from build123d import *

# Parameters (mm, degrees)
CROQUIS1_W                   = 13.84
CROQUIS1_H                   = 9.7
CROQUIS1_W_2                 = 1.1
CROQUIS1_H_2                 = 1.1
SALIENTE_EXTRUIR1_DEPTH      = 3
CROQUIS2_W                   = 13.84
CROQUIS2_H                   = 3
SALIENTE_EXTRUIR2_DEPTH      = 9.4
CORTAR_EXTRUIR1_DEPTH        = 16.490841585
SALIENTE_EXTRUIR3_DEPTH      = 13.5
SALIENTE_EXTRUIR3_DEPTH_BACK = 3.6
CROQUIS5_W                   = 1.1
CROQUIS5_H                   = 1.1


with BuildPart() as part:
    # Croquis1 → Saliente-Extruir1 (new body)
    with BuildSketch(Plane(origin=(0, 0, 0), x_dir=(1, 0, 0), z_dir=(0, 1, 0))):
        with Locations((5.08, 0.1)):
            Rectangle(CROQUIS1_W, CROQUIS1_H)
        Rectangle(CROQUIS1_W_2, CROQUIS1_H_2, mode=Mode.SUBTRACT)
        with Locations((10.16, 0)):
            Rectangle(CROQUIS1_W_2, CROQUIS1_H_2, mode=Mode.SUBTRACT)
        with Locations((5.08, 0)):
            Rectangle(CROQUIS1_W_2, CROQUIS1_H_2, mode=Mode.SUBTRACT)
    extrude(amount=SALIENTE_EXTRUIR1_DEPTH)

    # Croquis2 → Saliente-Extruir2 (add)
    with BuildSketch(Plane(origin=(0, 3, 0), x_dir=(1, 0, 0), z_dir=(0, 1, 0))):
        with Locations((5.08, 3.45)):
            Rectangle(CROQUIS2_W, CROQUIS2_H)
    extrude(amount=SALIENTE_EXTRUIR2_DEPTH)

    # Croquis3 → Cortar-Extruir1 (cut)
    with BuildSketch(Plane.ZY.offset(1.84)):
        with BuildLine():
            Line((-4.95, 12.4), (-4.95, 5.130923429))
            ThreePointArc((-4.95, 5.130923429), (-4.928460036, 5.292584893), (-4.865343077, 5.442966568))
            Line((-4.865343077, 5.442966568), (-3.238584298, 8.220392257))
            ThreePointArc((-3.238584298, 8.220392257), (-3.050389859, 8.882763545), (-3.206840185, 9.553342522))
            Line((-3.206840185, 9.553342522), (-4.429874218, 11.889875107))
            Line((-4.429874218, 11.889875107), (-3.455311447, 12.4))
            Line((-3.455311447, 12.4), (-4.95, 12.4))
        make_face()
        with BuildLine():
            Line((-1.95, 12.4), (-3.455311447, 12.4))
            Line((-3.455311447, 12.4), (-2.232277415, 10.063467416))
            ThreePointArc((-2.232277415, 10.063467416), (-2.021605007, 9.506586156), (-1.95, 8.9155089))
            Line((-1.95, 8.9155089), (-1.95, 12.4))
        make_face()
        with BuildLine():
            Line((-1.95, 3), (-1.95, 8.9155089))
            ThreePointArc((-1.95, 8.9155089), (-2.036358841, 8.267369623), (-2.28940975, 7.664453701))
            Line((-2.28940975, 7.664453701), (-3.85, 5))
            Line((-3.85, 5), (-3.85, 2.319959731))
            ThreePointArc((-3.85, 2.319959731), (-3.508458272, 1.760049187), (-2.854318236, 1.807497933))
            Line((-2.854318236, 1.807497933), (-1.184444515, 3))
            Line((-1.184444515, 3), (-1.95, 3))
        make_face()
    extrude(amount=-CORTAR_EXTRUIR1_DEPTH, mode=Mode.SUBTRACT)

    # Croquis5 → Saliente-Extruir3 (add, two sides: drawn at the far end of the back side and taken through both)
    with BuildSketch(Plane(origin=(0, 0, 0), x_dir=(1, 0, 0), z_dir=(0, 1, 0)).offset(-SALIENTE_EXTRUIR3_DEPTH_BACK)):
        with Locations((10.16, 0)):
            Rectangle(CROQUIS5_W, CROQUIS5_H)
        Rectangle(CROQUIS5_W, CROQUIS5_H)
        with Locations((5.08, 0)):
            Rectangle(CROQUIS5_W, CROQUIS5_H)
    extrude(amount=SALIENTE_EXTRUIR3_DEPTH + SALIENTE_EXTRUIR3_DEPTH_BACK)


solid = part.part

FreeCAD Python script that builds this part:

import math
import FreeCAD as App
import Part
import Sketcher

V = App.Vector
Q = App.Units.Quantity

doc = App.newDocument("Part")
params = doc.addObject("Spreadsheet::Sheet", "Params")
for row, (alias, value) in enumerate([
    ("sketch1_width", "1.1 mm"),
    ("sketch1_height", "9.7 mm"),
    ("sketch1_width2", "13.84 mm"),
    ("pad1_length", "3 mm"),
    ("sketch2_height", "3 mm"),
    ("sketch2_width", "13.84 mm"),
    ("pad2_length", "9.4 mm"),
    ("sketch3_length", "1.1 mm"),
    ("pocket1_length", "16.490842 mm"),
    ("sketch4_width", "1.1 mm"),
    ("pad3_length", "13.5 mm"),
    ("pad3_length2", "3.6 mm"),
], start=1):
    params.set(f"A{row}", alias)
    params.set(f"B{row}", "=" + value)
    params.setAlias(f"B{row}", alias)

body = doc.addObject("PartDesign::Body", "Body")

# Sketch on XZ plane
sketch1 = doc.addObject("Sketcher::SketchObject", "Sketch")
body.addObject(sketch1)
sketch1.AttachmentSupport = (doc.XZ_Plane, [""])
sketch1.MapMode = "FlatFace"
sketch1.addGeometry([
    Part.LineSegment(V(-1.8, -5, 0), V(-1.8, 4.8, 0)),  # 0
    Part.LineSegment(V(-1.8, 4.8, 0), V(12, 4.8, 0)),  # 1
    Part.LineSegment(V(12, 4.8, 0), V(12, -5, 0)),  # 2
    Part.LineSegment(V(12, -5, 0), V(-1.8, -5, 0)),  # 3
    Part.LineSegment(V(0.6, 0.6, 0), V(-0.6, 0.6, 0)),  # 4
    Part.LineSegment(V(-0.6, 0.6, 0), V(-0.6, -0.6, 0)),  # 5
    Part.LineSegment(V(-0.6, -0.6, 0), V(0.6, -0.6, 0)),  # 6
    Part.LineSegment(V(0.6, -0.6, 0), V(0.6, 0.6, 0)),  # 7
    Part.LineSegment(V(5.6, 0.6, 0), V(4.5, 0.6, 0)),  # 8
    Part.LineSegment(V(4.5, 0.6, 0), V(4.5, -0.6, 0)),  # 9
    Part.LineSegment(V(4.5, -0.6, 0), V(5.6, -0.6, 0)),  # 10
    Part.LineSegment(V(5.6, -0.6, 0), V(5.6, 0.6, 0)),  # 11
    Part.LineSegment(V(10.7, 0.6, 0), V(9.6, 0.6, 0)),  # 12
    Part.LineSegment(V(9.6, 0.6, 0), V(9.6, -0.6, 0)),  # 13
    Part.LineSegment(V(9.6, -0.6, 0), V(10.7, -0.6, 0)),  # 14
    Part.LineSegment(V(10.7, -0.6, 0), V(10.7, 0.6, 0)),  # 15
], False)
sketch1.addConstraint([
    Sketcher.Constraint("Coincident", 0, 2, 1, 1),
    Sketcher.Constraint("Coincident", 1, 2, 2, 1),
    Sketcher.Constraint("Coincident", 2, 2, 3, 1),
    Sketcher.Constraint("Coincident", 3, 2, 0, 1),
    Sketcher.Constraint("Coincident", 4, 2, 5, 1),
    Sketcher.Constraint("Coincident", 5, 2, 6, 1),
    Sketcher.Constraint("Coincident", 6, 2, 7, 1),
    Sketcher.Constraint("Coincident", 7, 2, 4, 1),
    Sketcher.Constraint("Coincident", 8, 2, 9, 1),
    Sketcher.Constraint("Coincident", 9, 2, 10, 1),
    Sketcher.Constraint("Coincident", 10, 2, 11, 1),
    Sketcher.Constraint("Coincident", 11, 2, 8, 1),
    Sketcher.Constraint("Coincident", 12, 2, 13, 1),
    Sketcher.Constraint("Coincident", 13, 2, 14, 1),
    Sketcher.Constraint("Coincident", 14, 2, 15, 1),
    Sketcher.Constraint("Coincident", 15, 2, 12, 1),
    Sketcher.Constraint("Vertical", 0),
    Sketcher.Constraint("Horizontal", 1),
    Sketcher.Constraint("Vertical", 2),
    Sketcher.Constraint("Horizontal", 3),
    Sketcher.Constraint("Horizontal", 4),
    Sketcher.Constraint("Vertical", 5),
    Sketcher.Constraint("Horizontal", 6),
    Sketcher.Constraint("Vertical", 7),
    Sketcher.Constraint("Horizontal", 8),
    Sketcher.Constraint("Vertical", 9),
    Sketcher.Constraint("Horizontal", 10),
    Sketcher.Constraint("Vertical", 11),
    Sketcher.Constraint("Horizontal", 12),
    Sketcher.Constraint("Vertical", 13),
    Sketcher.Constraint("Horizontal", 14),
    Sketcher.Constraint("Vertical", 15),
    Sketcher.Constraint("Symmetric", 4, 2, 6, 2, -1, 1),
    Sketcher.Constraint("Horizontal", 7, 2, 8, 2),
    Sketcher.Constraint("Horizontal", 6, 2, 9, 2),
    Sketcher.Constraint("Horizontal", 11, 2, 12, 2),
    Sketcher.Constraint("Horizontal", 10, 2, 13, 2),
    Sketcher.Constraint("Equal", 6, 8),
    Sketcher.Constraint("Equal", 10, 12),
    Sketcher.Constraint("Equal", 14, 5),
    Sketcher.Constraint("DistanceX", 4, 2, 4, 1, Q("1.1 mm")),
    Sketcher.Constraint("DistanceY", 0, 1, 0, 2, Q("9.7 mm")),
    Sketcher.Constraint("DistanceX", -1, 1, 1, 2, Q("12 mm")),
    Sketcher.Constraint("DistanceX", 1, 1, 1, 2, Q("13.84 mm")),
    Sketcher.Constraint("DistanceY", 4, 2, 0, 2, Q("4.2 mm")),
    Sketcher.Constraint("DistanceX", -1, 1, 8, 2, Q("4.53 mm")),
    Sketcher.Constraint("DistanceX", -1, 1, 12, 2, Q("9.61 mm")),
])
sketch1.setExpression("Constraints[40]", "Params.sketch1_width")
sketch1.setExpression("Constraints[41]", "Params.sketch1_height")
sketch1.setExpression("Constraints[43]", "Params.sketch1_width2")
pad1 = doc.addObject("PartDesign::Pad", "Pad")
body.addObject(pad1)
pad1.Profile = sketch1
pad1.setExpression("Length", "Params.pad1_length")
pad1.Reversed = True

# Sketch on XZ plane
sketch2 = doc.addObject("Sketcher::SketchObject", "Sketch001")
body.addObject(sketch2)
sketch2.AttachmentSupport = (doc.XZ_Plane, [""])
sketch2.MapMode = "FlatFace"
sketch2.AttachmentOffset = App.Placement(V(0, 0, -3), App.Rotation())
sketch2.addGeometry([
    Part.LineSegment(V(-1.8, -5, 0), V(-1.8, -1.9, 0)),
    Part.LineSegment(V(-1.8, -1.9, 0), V(12, -1.9, 0)),
    Part.LineSegment(V(12, -1.9, 0), V(12, -5, 0)),
    Part.LineSegment(V(12, -5, 0), V(-1.8, -5, 0)),
], False)
sketch2.addConstraint([
    Sketcher.Constraint("Coincident", 0, 2, 1, 1),
    Sketcher.Constraint("Coincident", 1, 2, 2, 1),
    Sketcher.Constraint("Coincident", 2, 2, 3, 1),
    Sketcher.Constraint("Coincident", 3, 2, 0, 1),
    Sketcher.Constraint("Vertical", 0),
    Sketcher.Constraint("Horizontal", 1),
    Sketcher.Constraint("Vertical", 2),
    Sketcher.Constraint("Horizontal", 3),
    Sketcher.Constraint("DistanceY", 0, 1, 0, 2, Q("3 mm")),
    Sketcher.Constraint("DistanceX", -1, 1, 1, 2, Q("12 mm")),
    Sketcher.Constraint("DistanceX", 1, 1, 1, 2, Q("13.84 mm")),
    Sketcher.Constraint("DistanceY", 0, 2, -1, 1, Q("1.95 mm")),
])
sketch2.setExpression("Constraints[8]", "Params.sketch2_height")
sketch2.setExpression("Constraints[10]", "Params.sketch2_width")
pad2 = doc.addObject("PartDesign::Pad", "Pad001")
body.addObject(pad2)
pad2.Profile = sketch2
pad2.setExpression("Length", "Params.pad2_length")
pad2.Reversed = True

# Sketch on YZ plane
sketch3 = doc.addObject("Sketcher::SketchObject", "Sketch002")
body.addObject(sketch3)
sketch3.AttachmentSupport = (doc.YZ_Plane, [""])
sketch3.MapMode = "FlatFace"
sketch3.AttachmentOffset = App.Placement(V(0, 0, -1.84), App.Rotation())
sketch3.addGeometry([
    Part.LineSegment(V(12.4, -4.95, 0), V(5.13, -4.95, 0)),  # 0
    Part.ArcOfCircle(Part.Circle(V(5.13, -4.33, 0), V(0, 0, 1), 0.62), math.radians(-90), math.radians(-60)),  # 1
    Part.LineSegment(V(5.44, -4.87, 0), V(8.22, -3.24, 0)),  # 2
    Part.ArcOfCircle(Part.Circle(V(8.92, -4.43, 0), V(0, 0, 1), 1.38), math.radians(62), math.radians(120)),  # 3
    Part.LineSegment(V(9.55, -3.21, 0), V(11.89, -4.43, 0)),  # 4
    Part.LineSegment(V(11.89, -4.43, 0), V(12.4, -3.46, 0)),  # 5
    Part.LineSegment(V(12.4, -3.46, 0), V(12.4, -4.95, 0)),  # 6
    Part.LineSegment(V(12.4, -1.95, 0), V(12.4, -3.46, 0)),  # 7
    Part.LineSegment(V(12.4, -3.46, 0), V(10.06, -2.23, 0)),  # 8
    Part.ArcOfCircle(Part.Circle(V(8.92, -4.43, 0), V(0, 0, 1), 2.48), math.radians(62), math.radians(90)),  # 9
    Part.LineSegment(V(8.92, -1.95, 0), V(12.4, -1.95, 0)),  # 10
    Part.LineSegment(V(3, -1.95, 0), V(8.92, -1.95, 0)),  # 11
    Part.ArcOfCircle(Part.Circle(V(8.92, -4.43, 0), V(0, 0, 1), 2.48), math.radians(90), math.radians(120)),  # 12
    Part.LineSegment(V(7.66, -2.29, 0), V(5, -3.85, 0)),  # 13
    Part.LineSegment(V(5, -3.85, 0), V(2.32, -3.85, 0)),  # 14
    Part.ArcOfCircle(Part.Circle(V(2.32, -3.22, 0), V(0, 0, 1), 0.63), math.radians(144), math.radians(270)),  # 15
    Part.LineSegment(V(1.81, -2.85, 0), V(3, -1.18, 0)),  # 16
    Part.LineSegment(V(3, -1.18, 0), V(3, -1.95, 0)),  # 17
], False)
sketch3.addConstraint([
    Sketcher.Constraint("Tangent", 0, 2, 1, 1),
    Sketcher.Constraint("Tangent", 1, 2, 2, 1),
    Sketcher.Constraint("Tangent", 2, 2, 3, 2),
    Sketcher.Constraint("Tangent", 3, 1, 4, 1),
    Sketcher.Constraint("Coincident", 4, 2, 5, 1),
    Sketcher.Constraint("Coincident", 5, 2, 6, 1),
    Sketcher.Constraint("Coincident", 6, 2, 0, 1),
    Sketcher.Constraint("Coincident", 7, 2, 8, 1),
    Sketcher.Constraint("Tangent", 8, 2, 9, 1),
    Sketcher.Constraint("Tangent", 9, 2, 10, 1),
    Sketcher.Constraint("Coincident", 10, 2, 7, 1),
    Sketcher.Constraint("Tangent", 11, 2, 12, 1),
    Sketcher.Constraint("Tangent", 12, 2, 13, 1),
    Sketcher.Constraint("Coincident", 13, 2, 14, 1),
    Sketcher.Constraint("Tangent", 14, 2, 15, 2),
    Sketcher.Constraint("Tangent", 15, 1, 16, 1),
    Sketcher.Constraint("Coincident", 16, 2, 17, 1),
    Sketcher.Constraint("Coincident", 17, 2, 11, 1),
    Sketcher.Constraint("Horizontal", 0),
    Sketcher.Constraint("Vertical", 6),
    Sketcher.Constraint("Vertical", 7),
    Sketcher.Constraint("Horizontal", 10),
    Sketcher.Constraint("Horizontal", 11),
    Sketcher.Constraint("Horizontal", 14),
    Sketcher.Constraint("Vertical", 17),
    Sketcher.Constraint("Coincident", 9, 3, 3, 3),
    Sketcher.Constraint("Coincident", 12, 3, 3, 3),
    Sketcher.Constraint("Coincident", 7, 2, 5, 2),
    Sketcher.Constraint("Equal", 9, 12),
    Sketcher.Constraint("Perpendicular", 4, 5),
    Sketcher.Constraint("Perpendicular", 5, 8),
    Sketcher.Constraint("Parallel", 2, 13),
    Sketcher.Constraint("DistanceX", -1, 1, 13, 2, Q("5 mm")),
    Sketcher.Constraint("DistanceX", -1, 1, 16, 2, Q("3 mm")),
    Sketcher.Constraint("DistanceY", 6, 2, 10, 2, Q("3 mm")),
    Sketcher.Constraint("Distance", 5, Q("1.1 mm")),
    Sketcher.Constraint("DistanceX", -1, 1, 5, 2, Q("12.4 mm")),
    Sketcher.Constraint("DistanceY", 0, 2, 13, 2, Q("1.1 mm")),
    Sketcher.Constraint("DistanceY", 0, 2, -1, 1, Q("4.95 mm")),
    Sketcher.Constraint("Radius", 1, Q("0.61742 mm")),
    Sketcher.Constraint("Radius", 15, Q("0.629719 mm")),
    Sketcher.Constraint("Radius", 3, Q("1.375383 mm")),
    Sketcher.Constraint("DistanceX", 10, 1, 10, 2, Q("3.484491 mm")),
    Sketcher.Constraint("DistanceX", 14, 2, 14, 1, Q("2.68004 mm")),
    Sketcher.Constraint("DistanceY", 6, 2, 6, 1, Q("1.494689 mm")),
    Sketcher.Constraint("Distance", 16, Q("2.05196 mm")),
])
sketch3.setExpression("Constraints[35]", "Params.sketch3_length")
pocket1 = doc.addObject("PartDesign::Pocket", "Pocket")
body.addObject(pocket1)
pocket1.Profile = sketch3
pocket1.setExpression("Length", "Params.pocket1_length")
pocket1.Reversed = True

# Sketch on XZ plane
sketch4 = doc.addObject("Sketcher::SketchObject", "Sketch003")
body.addObject(sketch4)
sketch4.AttachmentSupport = (doc.XZ_Plane, [""])
sketch4.MapMode = "FlatFace"
sketch4.addGeometry([
    Part.LineSegment(V(9.6, -0.6, 0), V(9.6, 0.6, 0)),  # 0
    Part.LineSegment(V(9.6, 0.6, 0), V(10.7, 0.6, 0)),  # 1
    Part.LineSegment(V(10.7, 0.6, 0), V(10.7, -0.6, 0)),  # 2
    Part.LineSegment(V(10.7, -0.6, 0), V(9.6, -0.6, 0)),  # 3
    Part.LineSegment(V(-0.6, -0.6, 0), V(-0.6, 0.6, 0)),  # 4
    Part.LineSegment(V(-0.6, 0.6, 0), V(0.6, 0.6, 0)),  # 5
    Part.LineSegment(V(0.6, 0.6, 0), V(0.6, -0.6, 0)),  # 6
    Part.LineSegment(V(0.6, -0.6, 0), V(-0.6, -0.6, 0)),  # 7
    Part.LineSegment(V(4.5, -0.6, 0), V(4.5, 0.6, 0)),  # 8
    Part.LineSegment(V(4.5, 0.6, 0), V(5.6, 0.6, 0)),  # 9
    Part.LineSegment(V(5.6, 0.6, 0), V(5.6, -0.6, 0)),  # 10
    Part.LineSegment(V(5.6, -0.6, 0), V(4.5, -0.6, 0)),  # 11
], False)
sketch4.addConstraint([
    Sketcher.Constraint("Coincident", 0, 2, 1, 1),
    Sketcher.Constraint("Coincident", 1, 2, 2, 1),
    Sketcher.Constraint("Coincident", 2, 2, 3, 1),
    Sketcher.Constraint("Coincident", 3, 2, 0, 1),
    Sketcher.Constraint("Coincident", 4, 2, 5, 1),
    Sketcher.Constraint("Coincident", 5, 2, 6, 1),
    Sketcher.Constraint("Coincident", 6, 2, 7, 1),
    Sketcher.Constraint("Coincident", 7, 2, 4, 1),
    Sketcher.Constraint("Coincident", 8, 2, 9, 1),
    Sketcher.Constraint("Coincident", 9, 2, 10, 1),
    Sketcher.Constraint("Coincident", 10, 2, 11, 1),
    Sketcher.Constraint("Coincident", 11, 2, 8, 1),
    Sketcher.Constraint("Vertical", 0),
    Sketcher.Constraint("Horizontal", 1),
    Sketcher.Constraint("Vertical", 2),
    Sketcher.Constraint("Horizontal", 3),
    Sketcher.Constraint("Vertical", 4),
    Sketcher.Constraint("Horizontal", 5),
    Sketcher.Constraint("Vertical", 6),
    Sketcher.Constraint("Horizontal", 7),
    Sketcher.Constraint("Vertical", 8),
    Sketcher.Constraint("Horizontal", 9),
    Sketcher.Constraint("Vertical", 10),
    Sketcher.Constraint("Horizontal", 11),
    Sketcher.Constraint("Symmetric", 4, 2, 6, 2, -1, 1),
    Sketcher.Constraint("Horizontal", 1, 2, 4, 2),
    Sketcher.Constraint("Horizontal", 3, 2, 6, 2),
    Sketcher.Constraint("Horizontal", 5, 2, 8, 2),
    Sketcher.Constraint("Horizontal", 7, 2, 10, 2),
    Sketcher.Constraint("Equal", 3, 5),
    Sketcher.Constraint("Equal", 7, 9),
    Sketcher.Constraint("Equal", 11, 0),
    Sketcher.Constraint("DistanceX", 1, 1, 1, 2, Q("1.1 mm")),
    Sketcher.Constraint("DistanceX", -1, 1, 0, 2, Q("9.61 mm")),
    Sketcher.Constraint("DistanceX", -1, 1, 8, 2, Q("4.53 mm")),
])
sketch4.setExpression("Constraints[32]", "Params.sketch4_width")
pad3 = doc.addObject("PartDesign::Pad", "Pad002")
body.addObject(pad3)
pad3.Profile = sketch4
pad3.Type = "TwoLengths"
pad3.setExpression("Length", "Params.pad3_length")
pad3.setExpression("Length2", "Params.pad3_length2")
pad3.Reversed = True

doc.recompute()
